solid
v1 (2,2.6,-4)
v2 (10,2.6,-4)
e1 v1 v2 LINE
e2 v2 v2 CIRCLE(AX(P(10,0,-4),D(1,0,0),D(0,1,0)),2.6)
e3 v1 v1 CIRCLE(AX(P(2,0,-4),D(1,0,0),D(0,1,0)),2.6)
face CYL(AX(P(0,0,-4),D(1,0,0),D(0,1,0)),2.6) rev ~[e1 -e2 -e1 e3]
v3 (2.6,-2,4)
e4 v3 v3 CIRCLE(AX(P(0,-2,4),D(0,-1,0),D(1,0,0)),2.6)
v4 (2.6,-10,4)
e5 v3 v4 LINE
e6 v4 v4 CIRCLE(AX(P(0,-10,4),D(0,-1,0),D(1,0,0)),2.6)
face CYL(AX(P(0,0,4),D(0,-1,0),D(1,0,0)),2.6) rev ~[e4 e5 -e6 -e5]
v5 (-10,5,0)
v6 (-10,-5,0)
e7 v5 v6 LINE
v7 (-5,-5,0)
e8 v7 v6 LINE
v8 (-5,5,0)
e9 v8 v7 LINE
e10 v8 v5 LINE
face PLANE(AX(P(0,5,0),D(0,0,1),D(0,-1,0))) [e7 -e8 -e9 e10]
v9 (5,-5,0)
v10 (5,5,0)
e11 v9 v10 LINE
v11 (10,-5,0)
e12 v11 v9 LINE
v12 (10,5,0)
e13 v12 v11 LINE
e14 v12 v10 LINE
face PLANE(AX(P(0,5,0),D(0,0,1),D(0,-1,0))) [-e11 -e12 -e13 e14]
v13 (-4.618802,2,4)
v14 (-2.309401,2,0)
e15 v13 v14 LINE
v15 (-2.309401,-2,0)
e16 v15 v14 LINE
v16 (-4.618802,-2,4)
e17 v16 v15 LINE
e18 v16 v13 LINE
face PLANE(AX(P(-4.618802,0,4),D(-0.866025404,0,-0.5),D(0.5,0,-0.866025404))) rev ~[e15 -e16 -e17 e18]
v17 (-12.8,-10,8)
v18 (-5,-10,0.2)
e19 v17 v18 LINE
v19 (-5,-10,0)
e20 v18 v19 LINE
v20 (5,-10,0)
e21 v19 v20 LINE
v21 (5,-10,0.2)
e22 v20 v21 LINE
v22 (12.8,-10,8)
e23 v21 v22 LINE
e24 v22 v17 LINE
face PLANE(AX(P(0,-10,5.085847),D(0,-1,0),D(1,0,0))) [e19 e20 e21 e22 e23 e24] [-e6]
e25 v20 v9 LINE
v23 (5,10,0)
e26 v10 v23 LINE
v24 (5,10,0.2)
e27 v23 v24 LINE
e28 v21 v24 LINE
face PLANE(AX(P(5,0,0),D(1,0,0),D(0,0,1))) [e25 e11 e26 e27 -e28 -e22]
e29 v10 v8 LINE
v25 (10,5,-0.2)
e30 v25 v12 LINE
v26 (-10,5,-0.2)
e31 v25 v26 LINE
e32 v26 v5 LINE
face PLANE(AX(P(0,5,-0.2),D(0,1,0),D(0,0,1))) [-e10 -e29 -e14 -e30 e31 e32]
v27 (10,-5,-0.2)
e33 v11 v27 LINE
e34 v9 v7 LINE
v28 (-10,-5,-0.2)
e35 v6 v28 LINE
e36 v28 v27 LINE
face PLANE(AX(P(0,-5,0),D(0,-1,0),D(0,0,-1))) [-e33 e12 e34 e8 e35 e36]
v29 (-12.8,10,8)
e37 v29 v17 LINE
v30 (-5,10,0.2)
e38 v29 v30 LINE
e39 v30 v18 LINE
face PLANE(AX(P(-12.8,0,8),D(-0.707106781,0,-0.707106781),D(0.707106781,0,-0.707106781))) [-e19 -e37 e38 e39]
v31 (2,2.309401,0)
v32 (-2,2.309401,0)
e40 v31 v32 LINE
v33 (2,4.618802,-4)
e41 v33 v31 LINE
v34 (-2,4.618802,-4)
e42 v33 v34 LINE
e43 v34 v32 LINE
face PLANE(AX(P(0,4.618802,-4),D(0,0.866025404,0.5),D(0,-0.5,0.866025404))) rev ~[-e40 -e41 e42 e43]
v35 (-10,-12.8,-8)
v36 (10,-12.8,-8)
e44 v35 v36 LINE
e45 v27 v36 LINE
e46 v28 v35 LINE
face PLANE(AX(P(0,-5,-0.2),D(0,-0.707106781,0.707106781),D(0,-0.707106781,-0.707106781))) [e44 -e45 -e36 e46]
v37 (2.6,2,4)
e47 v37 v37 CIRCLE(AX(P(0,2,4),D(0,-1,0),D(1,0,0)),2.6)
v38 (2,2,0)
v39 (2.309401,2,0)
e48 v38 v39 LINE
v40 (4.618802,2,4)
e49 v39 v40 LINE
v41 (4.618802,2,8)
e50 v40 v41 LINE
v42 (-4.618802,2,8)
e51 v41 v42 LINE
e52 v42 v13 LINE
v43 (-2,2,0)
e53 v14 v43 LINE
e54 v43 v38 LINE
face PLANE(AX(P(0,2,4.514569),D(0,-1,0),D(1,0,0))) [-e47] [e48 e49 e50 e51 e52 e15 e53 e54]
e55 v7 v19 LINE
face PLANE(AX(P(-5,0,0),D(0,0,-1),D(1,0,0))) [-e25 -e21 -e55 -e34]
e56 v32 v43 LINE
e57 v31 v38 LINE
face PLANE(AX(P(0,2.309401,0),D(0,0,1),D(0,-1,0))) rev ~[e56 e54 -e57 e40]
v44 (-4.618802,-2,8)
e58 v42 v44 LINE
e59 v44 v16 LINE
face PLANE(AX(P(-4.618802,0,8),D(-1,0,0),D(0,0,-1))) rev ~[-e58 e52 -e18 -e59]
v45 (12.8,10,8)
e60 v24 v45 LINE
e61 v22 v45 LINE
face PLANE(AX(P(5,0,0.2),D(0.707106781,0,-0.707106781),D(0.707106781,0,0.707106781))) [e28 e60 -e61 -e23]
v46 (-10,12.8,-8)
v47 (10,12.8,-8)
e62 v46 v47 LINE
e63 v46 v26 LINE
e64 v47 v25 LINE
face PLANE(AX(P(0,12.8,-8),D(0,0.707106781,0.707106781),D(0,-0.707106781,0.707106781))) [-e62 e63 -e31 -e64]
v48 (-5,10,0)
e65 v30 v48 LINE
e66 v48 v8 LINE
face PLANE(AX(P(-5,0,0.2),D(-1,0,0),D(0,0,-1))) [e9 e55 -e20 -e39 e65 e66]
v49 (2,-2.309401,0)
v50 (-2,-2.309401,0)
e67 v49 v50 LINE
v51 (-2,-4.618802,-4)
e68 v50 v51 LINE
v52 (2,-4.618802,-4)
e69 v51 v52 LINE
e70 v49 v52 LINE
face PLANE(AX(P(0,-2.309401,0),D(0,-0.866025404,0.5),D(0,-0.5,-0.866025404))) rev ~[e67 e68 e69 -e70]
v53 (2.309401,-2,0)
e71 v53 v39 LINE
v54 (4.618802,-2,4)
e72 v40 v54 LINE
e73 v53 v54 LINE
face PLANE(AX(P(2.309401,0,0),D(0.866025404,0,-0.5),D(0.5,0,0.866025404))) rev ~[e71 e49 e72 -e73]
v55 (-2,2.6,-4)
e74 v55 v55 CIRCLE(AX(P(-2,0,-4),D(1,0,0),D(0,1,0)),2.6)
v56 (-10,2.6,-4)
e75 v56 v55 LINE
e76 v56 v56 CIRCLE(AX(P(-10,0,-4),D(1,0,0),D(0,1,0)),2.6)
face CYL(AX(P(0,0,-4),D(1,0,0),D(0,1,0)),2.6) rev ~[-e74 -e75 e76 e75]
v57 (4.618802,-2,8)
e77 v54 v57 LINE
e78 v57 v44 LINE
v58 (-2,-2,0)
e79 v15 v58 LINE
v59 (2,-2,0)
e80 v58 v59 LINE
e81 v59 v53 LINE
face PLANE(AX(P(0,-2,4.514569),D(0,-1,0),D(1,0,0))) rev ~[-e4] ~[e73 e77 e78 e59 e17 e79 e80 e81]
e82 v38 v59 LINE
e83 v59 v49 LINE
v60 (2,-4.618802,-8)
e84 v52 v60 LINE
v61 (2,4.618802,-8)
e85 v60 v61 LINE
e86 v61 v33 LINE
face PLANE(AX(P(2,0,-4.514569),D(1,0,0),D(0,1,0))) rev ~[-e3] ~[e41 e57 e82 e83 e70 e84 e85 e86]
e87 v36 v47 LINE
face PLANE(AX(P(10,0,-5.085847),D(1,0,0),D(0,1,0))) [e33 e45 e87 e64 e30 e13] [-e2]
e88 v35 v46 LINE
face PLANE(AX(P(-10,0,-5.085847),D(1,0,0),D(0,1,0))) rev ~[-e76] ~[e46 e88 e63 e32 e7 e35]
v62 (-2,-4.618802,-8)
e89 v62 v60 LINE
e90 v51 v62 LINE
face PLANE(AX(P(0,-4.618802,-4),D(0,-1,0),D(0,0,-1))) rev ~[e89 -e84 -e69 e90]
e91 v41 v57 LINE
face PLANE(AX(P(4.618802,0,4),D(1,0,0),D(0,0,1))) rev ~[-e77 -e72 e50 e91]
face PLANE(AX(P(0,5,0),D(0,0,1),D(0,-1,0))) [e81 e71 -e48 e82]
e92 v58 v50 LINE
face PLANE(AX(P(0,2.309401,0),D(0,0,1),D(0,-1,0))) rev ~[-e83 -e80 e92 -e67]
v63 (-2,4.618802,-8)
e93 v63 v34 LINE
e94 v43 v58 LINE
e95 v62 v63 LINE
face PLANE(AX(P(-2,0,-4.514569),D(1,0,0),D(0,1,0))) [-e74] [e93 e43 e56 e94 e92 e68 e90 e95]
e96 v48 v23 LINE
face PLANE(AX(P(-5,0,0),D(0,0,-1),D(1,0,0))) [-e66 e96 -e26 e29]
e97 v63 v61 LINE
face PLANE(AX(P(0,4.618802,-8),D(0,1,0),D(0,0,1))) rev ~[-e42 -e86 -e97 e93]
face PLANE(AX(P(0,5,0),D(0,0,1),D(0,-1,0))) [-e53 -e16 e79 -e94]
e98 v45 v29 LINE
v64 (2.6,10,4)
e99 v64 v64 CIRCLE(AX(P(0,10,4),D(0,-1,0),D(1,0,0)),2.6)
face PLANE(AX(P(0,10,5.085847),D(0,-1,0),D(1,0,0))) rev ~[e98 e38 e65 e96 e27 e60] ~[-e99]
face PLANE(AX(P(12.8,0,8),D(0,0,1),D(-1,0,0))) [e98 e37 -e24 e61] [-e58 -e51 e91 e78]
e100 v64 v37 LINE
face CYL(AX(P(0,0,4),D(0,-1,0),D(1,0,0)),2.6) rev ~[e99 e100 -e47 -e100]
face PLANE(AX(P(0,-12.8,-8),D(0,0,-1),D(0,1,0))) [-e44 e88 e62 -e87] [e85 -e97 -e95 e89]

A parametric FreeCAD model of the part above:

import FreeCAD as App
import Part
import Sketcher
Q = App.Units.Quantity


def add_polygon(sketch, points):
    """Adds a closed chain of lines whose ends are joined by coincident constraints."""
    first, n = sketch.GeometryCount, len(points)
    for a, b in zip(points, points[1:] + points[:1]):
        sketch.addGeometry(Part.LineSegment(App.Vector(*a, 0), App.Vector(*b, 0)), False)
    for i in range(n):
        sketch.addConstraint(Sketcher.Constraint("Coincident", first + i, 2, first + (i + 1) % n, 1))

doc = App.newDocument("Part")
params = doc.addObject("Spreadsheet::Sheet", "Params")
for row, (alias, value) in enumerate([
    ("sketch1_width", "10 mm"),
    ("sketch1_width2", "25.6 mm"),
    ("sketch1_height", "0.2 mm"),
    ("pad1_length", "20 mm"),
    ("sketch2_height", "4 mm"),
    ("pocket1_length", "4 mm"),
    ("sketch3_diameter", "5.2 mm"),
    ("pocket2_length", "20 mm"),
    ("sketch4_width", "10 mm"),
    ("sketch4_width2", "25.6 mm"),
    ("sketch4_height", "0.2 mm"),
    ("pad2_length", "20 mm"),
    ("sketch5_height", "4 mm"),
    ("pocket3_length", "4 mm"),
    ("sketch6_diameter", "5.2 mm"),
    ("pocket4_length", "20 mm"),
], start=1):
    params.set(f"A{row}", alias)
    params.set(f"B{row}", "=" + value)
    params.setAlias(f"B{row}", alias)

body = doc.addObject("PartDesign::Body", "Body")

sketch1 = doc.addObject("Sketcher::SketchObject", "Sketch")
body.addObject(sketch1)
sketch1.AttachmentSupport = (doc.XZ_Plane, [""])
sketch1.MapMode = "FlatFace"
add_polygon(sketch1, [(12.8, 8), (-12.8, 8), (-5, 0.2), (-5, 0), (5, 0), (5, 0.2)])
sketch1.addConstraint([
    Sketcher.Constraint("Horizontal", 0),
    Sketcher.Constraint("Vertical", 2),
    Sketcher.Constraint("Horizontal", 3),
    Sketcher.Constraint("Vertical", 4),
    Sketcher.Constraint("Symmetric", 2, 2, 3, 2, -1, 1),
    Sketcher.Constraint("Perpendicular", 1, 5),
    Sketcher.Constraint("Horizontal", 1, 2, 4, 2),
    Sketcher.Constraint("Equal", 1, 5),
    Sketcher.Constraint("DistanceX", 3, 1, 3, 2, Q("10 mm")),
    Sketcher.Constraint("DistanceX", 0, 2, 0, 1, Q("25.6 mm")),
    Sketcher.Constraint("DistanceY", 2, 2, 2, 1, Q("0.2 mm")),
])
sketch1.setExpression("Constraints[14]", "Params.sketch1_width")
sketch1.setExpression("Constraints[15]", "Params.sketch1_width2")
sketch1.setExpression("Constraints[16]", "Params.sketch1_height")
pad1 = doc.addObject("PartDesign::Pad", "Pad")
body.addObject(pad1)
pad1.Profile = sketch1
pad1.setExpression("Length", "Params.pad1_length")
pad1.Midplane = True

sketch2 = doc.addObject("Sketcher::SketchObject", "Sketch001")
body.addObject(sketch2)
sketch2.AttachmentSupport = (doc.XZ_Plane, [""])
sketch2.MapMode = "FlatFace"
add_polygon(sketch2, [(2.3, 0), (4.6, 4), (4.6, 8), (-4.6, 8), (-4.6, 4), (-2.3, 0)])
sketch2.addConstraint([
    Sketcher.Constraint("Vertical", 1),
    Sketcher.Constraint("Horizontal", 2),
    Sketcher.Constraint("Vertical", 3),
    Sketcher.Constraint("Horizontal", 5),
    Sketcher.Constraint("Symmetric", 4, 2, 5, 2, -1, 1),
    Sketcher.Constraint("Symmetric", 0, 2, 3, 2, -2),
    Sketcher.Constraint("DistanceY", 1, 1, 1, 2, Q("4 mm")),
    Sketcher.Constraint("Angle", 0, Q("60 deg")),
    Sketcher.Constraint("DistanceY", -1, 1, 0, 2, Q("4 mm")),
    Sketcher.Constraint("DistanceX", 4, 2, -1, 1, Q("2.309401 mm")),
])
sketch2.setExpression("Constraints[12]", "Params.sketch2_height")
pocket1 = doc.addObject("PartDesign::Pocket", "Pocket")
body.addObject(pocket1)
pocket1.Profile = sketch2
pocket1.setExpression("Length", "Params.pocket1_length")
pocket1.Midplane = True

sketch3 = doc.addObject("Sketcher::SketchObject", "Sketch002")
body.addObject(sketch3)
sketch3.AttachmentSupport = (doc.XZ_Plane, [""])
sketch3.MapMode = "FlatFace"
sketch3.addGeometry(Part.Circle(App.Vector(0, 4, 0), App.Vector(0, 0, 1), 2.6), False)
sketch3.addConstraint([
    Sketcher.Constraint("PointOnObject", 0, 3, -2),
    Sketcher.Constraint("Diameter", 0, Q("5.2 mm")),
    Sketcher.Constraint("DistanceY", -1, 1, 0, 3, Q("4 mm")),
])
sketch3.setExpression("Constraints[1]", "Params.sketch3_diameter")
pocket2 = doc.addObject("PartDesign::Pocket", "Pocket001")
body.addObject(pocket2)
pocket2.Profile = sketch3
pocket2.setExpression("Length", "Params.pocket2_length")
pocket2.Midplane = True

sketch4 = doc.addObject("Sketcher::SketchObject", "Sketch003")
body.addObject(sketch4)
sketch4.AttachmentSupport = (doc.YZ_Plane, [""])
sketch4.MapMode = "FlatFace"
add_polygon(sketch4, [(-5, 0), (-5, -0.2), (-12.8, -8), (12.8, -8), (5, -0.2), (5, 0)])
sketch4.addConstraint([
    Sketcher.Constraint("Vertical", 0),
    Sketcher.Constraint("Horizontal", 2),
    Sketcher.Constraint("Vertical", 4),
    Sketcher.Constraint("Horizontal", 5),
    Sketcher.Constraint("Symmetric", 4, 2, 5, 2, -1, 1),
    Sketcher.Constraint("Perpendicular", 1, 3),
    Sketcher.Constraint("Horizontal", 0, 2, 3, 2),
    Sketcher.Constraint("Equal", 1, 3),
    Sketcher.Constraint("DistanceX", 5, 2, 5, 1, Q("10 mm")),
    Sketcher.Constraint("DistanceX", 2, 1, 2, 2, Q("25.6 mm")),
    Sketcher.Constraint("DistanceY", 0, 2, 0, 1, Q("0.2 mm")),
])
sketch4.setExpression("Constraints[14]", "Params.sketch4_width")
sketch4.setExpression("Constraints[15]", "Params.sketch4_width2")
sketch4.setExpression("Constraints[16]", "Params.sketch4_height")
pad2 = doc.addObject("PartDesign::Pad", "Pad001")
body.addObject(pad2)
pad2.Profile = sketch4
pad2.setExpression("Length", "Params.pad2_length")
pad2.Midplane = True

sketch5 = doc.addObject("Sketcher::SketchObject", "Sketch004")
body.addObject(sketch5)
sketch5.AttachmentSupport = (doc.YZ_Plane, [""])
sketch5.MapMode = "FlatFace"
add_polygon(sketch5, [(-2.3, 0), (-4.6, -4), (-4.6, -8), (4.6, -8), (4.6, -4), (2.3, 0)])
sketch5.addConstraint([
    Sketcher.Constraint("Vertical", 1),
    Sketcher.Constraint("Horizontal", 2),
    Sketcher.Constraint("Vertical", 3),
    Sketcher.Constraint("Horizontal", 5),
    Sketcher.Constraint("Symmetric", 4, 2, 5, 2, -1, 1),
    Sketcher.Constraint("Symmetric", 0, 2, 3, 2, -2),
    Sketcher.Constraint("DistanceY", 1, 2, 1, 1, Q("4 mm")),
    Sketcher.Constraint("Angle", 0, Q("-120 deg")),
    Sketcher.Constraint("DistanceY", 0, 2, -1, 1, Q("4 mm")),
    Sketcher.Constraint("DistanceX", -1, 1, 4, 2, Q("2.309401 mm")),
])
sketch5.setExpression("Constraints[12]", "Params.sketch5_height")
pocket3 = doc.addObject("PartDesign::Pocket", "Pocket002")
body.addObject(pocket3)
pocket3.Profile = sketch5
pocket3.setExpression("Length", "Params.pocket3_length")
pocket3.Midplane = True

sketch6 = doc.addObject("Sketcher::SketchObject", "Sketch005")
body.addObject(sketch6)
sketch6.AttachmentSupport = (doc.YZ_Plane, [""])
sketch6.MapMode = "FlatFace"
sketch6.addGeometry(Part.Circle(App.Vector(0, -4, 0), App.Vector(0, 0, 1), 2.6), False)
sketch6.addConstraint([
    Sketcher.Constraint("PointOnObject", 0, 3, -2),
    Sketcher.Constraint("Diameter", 0, Q("5.2 mm")),
    Sketcher.Constraint("DistanceY", 0, 3, -1, 1, Q("4 mm")),
])
sketch6.setExpression("Constraints[1]", "Params.sketch6_diameter")
pocket4 = doc.addObject("PartDesign::Pocket", "Pocket003")
body.addObject(pocket4)
pocket4.Profile = sketch6
pocket4.setExpression("Length", "Params.pocket4_length")
pocket4.Midplane = True

doc.recompute()
